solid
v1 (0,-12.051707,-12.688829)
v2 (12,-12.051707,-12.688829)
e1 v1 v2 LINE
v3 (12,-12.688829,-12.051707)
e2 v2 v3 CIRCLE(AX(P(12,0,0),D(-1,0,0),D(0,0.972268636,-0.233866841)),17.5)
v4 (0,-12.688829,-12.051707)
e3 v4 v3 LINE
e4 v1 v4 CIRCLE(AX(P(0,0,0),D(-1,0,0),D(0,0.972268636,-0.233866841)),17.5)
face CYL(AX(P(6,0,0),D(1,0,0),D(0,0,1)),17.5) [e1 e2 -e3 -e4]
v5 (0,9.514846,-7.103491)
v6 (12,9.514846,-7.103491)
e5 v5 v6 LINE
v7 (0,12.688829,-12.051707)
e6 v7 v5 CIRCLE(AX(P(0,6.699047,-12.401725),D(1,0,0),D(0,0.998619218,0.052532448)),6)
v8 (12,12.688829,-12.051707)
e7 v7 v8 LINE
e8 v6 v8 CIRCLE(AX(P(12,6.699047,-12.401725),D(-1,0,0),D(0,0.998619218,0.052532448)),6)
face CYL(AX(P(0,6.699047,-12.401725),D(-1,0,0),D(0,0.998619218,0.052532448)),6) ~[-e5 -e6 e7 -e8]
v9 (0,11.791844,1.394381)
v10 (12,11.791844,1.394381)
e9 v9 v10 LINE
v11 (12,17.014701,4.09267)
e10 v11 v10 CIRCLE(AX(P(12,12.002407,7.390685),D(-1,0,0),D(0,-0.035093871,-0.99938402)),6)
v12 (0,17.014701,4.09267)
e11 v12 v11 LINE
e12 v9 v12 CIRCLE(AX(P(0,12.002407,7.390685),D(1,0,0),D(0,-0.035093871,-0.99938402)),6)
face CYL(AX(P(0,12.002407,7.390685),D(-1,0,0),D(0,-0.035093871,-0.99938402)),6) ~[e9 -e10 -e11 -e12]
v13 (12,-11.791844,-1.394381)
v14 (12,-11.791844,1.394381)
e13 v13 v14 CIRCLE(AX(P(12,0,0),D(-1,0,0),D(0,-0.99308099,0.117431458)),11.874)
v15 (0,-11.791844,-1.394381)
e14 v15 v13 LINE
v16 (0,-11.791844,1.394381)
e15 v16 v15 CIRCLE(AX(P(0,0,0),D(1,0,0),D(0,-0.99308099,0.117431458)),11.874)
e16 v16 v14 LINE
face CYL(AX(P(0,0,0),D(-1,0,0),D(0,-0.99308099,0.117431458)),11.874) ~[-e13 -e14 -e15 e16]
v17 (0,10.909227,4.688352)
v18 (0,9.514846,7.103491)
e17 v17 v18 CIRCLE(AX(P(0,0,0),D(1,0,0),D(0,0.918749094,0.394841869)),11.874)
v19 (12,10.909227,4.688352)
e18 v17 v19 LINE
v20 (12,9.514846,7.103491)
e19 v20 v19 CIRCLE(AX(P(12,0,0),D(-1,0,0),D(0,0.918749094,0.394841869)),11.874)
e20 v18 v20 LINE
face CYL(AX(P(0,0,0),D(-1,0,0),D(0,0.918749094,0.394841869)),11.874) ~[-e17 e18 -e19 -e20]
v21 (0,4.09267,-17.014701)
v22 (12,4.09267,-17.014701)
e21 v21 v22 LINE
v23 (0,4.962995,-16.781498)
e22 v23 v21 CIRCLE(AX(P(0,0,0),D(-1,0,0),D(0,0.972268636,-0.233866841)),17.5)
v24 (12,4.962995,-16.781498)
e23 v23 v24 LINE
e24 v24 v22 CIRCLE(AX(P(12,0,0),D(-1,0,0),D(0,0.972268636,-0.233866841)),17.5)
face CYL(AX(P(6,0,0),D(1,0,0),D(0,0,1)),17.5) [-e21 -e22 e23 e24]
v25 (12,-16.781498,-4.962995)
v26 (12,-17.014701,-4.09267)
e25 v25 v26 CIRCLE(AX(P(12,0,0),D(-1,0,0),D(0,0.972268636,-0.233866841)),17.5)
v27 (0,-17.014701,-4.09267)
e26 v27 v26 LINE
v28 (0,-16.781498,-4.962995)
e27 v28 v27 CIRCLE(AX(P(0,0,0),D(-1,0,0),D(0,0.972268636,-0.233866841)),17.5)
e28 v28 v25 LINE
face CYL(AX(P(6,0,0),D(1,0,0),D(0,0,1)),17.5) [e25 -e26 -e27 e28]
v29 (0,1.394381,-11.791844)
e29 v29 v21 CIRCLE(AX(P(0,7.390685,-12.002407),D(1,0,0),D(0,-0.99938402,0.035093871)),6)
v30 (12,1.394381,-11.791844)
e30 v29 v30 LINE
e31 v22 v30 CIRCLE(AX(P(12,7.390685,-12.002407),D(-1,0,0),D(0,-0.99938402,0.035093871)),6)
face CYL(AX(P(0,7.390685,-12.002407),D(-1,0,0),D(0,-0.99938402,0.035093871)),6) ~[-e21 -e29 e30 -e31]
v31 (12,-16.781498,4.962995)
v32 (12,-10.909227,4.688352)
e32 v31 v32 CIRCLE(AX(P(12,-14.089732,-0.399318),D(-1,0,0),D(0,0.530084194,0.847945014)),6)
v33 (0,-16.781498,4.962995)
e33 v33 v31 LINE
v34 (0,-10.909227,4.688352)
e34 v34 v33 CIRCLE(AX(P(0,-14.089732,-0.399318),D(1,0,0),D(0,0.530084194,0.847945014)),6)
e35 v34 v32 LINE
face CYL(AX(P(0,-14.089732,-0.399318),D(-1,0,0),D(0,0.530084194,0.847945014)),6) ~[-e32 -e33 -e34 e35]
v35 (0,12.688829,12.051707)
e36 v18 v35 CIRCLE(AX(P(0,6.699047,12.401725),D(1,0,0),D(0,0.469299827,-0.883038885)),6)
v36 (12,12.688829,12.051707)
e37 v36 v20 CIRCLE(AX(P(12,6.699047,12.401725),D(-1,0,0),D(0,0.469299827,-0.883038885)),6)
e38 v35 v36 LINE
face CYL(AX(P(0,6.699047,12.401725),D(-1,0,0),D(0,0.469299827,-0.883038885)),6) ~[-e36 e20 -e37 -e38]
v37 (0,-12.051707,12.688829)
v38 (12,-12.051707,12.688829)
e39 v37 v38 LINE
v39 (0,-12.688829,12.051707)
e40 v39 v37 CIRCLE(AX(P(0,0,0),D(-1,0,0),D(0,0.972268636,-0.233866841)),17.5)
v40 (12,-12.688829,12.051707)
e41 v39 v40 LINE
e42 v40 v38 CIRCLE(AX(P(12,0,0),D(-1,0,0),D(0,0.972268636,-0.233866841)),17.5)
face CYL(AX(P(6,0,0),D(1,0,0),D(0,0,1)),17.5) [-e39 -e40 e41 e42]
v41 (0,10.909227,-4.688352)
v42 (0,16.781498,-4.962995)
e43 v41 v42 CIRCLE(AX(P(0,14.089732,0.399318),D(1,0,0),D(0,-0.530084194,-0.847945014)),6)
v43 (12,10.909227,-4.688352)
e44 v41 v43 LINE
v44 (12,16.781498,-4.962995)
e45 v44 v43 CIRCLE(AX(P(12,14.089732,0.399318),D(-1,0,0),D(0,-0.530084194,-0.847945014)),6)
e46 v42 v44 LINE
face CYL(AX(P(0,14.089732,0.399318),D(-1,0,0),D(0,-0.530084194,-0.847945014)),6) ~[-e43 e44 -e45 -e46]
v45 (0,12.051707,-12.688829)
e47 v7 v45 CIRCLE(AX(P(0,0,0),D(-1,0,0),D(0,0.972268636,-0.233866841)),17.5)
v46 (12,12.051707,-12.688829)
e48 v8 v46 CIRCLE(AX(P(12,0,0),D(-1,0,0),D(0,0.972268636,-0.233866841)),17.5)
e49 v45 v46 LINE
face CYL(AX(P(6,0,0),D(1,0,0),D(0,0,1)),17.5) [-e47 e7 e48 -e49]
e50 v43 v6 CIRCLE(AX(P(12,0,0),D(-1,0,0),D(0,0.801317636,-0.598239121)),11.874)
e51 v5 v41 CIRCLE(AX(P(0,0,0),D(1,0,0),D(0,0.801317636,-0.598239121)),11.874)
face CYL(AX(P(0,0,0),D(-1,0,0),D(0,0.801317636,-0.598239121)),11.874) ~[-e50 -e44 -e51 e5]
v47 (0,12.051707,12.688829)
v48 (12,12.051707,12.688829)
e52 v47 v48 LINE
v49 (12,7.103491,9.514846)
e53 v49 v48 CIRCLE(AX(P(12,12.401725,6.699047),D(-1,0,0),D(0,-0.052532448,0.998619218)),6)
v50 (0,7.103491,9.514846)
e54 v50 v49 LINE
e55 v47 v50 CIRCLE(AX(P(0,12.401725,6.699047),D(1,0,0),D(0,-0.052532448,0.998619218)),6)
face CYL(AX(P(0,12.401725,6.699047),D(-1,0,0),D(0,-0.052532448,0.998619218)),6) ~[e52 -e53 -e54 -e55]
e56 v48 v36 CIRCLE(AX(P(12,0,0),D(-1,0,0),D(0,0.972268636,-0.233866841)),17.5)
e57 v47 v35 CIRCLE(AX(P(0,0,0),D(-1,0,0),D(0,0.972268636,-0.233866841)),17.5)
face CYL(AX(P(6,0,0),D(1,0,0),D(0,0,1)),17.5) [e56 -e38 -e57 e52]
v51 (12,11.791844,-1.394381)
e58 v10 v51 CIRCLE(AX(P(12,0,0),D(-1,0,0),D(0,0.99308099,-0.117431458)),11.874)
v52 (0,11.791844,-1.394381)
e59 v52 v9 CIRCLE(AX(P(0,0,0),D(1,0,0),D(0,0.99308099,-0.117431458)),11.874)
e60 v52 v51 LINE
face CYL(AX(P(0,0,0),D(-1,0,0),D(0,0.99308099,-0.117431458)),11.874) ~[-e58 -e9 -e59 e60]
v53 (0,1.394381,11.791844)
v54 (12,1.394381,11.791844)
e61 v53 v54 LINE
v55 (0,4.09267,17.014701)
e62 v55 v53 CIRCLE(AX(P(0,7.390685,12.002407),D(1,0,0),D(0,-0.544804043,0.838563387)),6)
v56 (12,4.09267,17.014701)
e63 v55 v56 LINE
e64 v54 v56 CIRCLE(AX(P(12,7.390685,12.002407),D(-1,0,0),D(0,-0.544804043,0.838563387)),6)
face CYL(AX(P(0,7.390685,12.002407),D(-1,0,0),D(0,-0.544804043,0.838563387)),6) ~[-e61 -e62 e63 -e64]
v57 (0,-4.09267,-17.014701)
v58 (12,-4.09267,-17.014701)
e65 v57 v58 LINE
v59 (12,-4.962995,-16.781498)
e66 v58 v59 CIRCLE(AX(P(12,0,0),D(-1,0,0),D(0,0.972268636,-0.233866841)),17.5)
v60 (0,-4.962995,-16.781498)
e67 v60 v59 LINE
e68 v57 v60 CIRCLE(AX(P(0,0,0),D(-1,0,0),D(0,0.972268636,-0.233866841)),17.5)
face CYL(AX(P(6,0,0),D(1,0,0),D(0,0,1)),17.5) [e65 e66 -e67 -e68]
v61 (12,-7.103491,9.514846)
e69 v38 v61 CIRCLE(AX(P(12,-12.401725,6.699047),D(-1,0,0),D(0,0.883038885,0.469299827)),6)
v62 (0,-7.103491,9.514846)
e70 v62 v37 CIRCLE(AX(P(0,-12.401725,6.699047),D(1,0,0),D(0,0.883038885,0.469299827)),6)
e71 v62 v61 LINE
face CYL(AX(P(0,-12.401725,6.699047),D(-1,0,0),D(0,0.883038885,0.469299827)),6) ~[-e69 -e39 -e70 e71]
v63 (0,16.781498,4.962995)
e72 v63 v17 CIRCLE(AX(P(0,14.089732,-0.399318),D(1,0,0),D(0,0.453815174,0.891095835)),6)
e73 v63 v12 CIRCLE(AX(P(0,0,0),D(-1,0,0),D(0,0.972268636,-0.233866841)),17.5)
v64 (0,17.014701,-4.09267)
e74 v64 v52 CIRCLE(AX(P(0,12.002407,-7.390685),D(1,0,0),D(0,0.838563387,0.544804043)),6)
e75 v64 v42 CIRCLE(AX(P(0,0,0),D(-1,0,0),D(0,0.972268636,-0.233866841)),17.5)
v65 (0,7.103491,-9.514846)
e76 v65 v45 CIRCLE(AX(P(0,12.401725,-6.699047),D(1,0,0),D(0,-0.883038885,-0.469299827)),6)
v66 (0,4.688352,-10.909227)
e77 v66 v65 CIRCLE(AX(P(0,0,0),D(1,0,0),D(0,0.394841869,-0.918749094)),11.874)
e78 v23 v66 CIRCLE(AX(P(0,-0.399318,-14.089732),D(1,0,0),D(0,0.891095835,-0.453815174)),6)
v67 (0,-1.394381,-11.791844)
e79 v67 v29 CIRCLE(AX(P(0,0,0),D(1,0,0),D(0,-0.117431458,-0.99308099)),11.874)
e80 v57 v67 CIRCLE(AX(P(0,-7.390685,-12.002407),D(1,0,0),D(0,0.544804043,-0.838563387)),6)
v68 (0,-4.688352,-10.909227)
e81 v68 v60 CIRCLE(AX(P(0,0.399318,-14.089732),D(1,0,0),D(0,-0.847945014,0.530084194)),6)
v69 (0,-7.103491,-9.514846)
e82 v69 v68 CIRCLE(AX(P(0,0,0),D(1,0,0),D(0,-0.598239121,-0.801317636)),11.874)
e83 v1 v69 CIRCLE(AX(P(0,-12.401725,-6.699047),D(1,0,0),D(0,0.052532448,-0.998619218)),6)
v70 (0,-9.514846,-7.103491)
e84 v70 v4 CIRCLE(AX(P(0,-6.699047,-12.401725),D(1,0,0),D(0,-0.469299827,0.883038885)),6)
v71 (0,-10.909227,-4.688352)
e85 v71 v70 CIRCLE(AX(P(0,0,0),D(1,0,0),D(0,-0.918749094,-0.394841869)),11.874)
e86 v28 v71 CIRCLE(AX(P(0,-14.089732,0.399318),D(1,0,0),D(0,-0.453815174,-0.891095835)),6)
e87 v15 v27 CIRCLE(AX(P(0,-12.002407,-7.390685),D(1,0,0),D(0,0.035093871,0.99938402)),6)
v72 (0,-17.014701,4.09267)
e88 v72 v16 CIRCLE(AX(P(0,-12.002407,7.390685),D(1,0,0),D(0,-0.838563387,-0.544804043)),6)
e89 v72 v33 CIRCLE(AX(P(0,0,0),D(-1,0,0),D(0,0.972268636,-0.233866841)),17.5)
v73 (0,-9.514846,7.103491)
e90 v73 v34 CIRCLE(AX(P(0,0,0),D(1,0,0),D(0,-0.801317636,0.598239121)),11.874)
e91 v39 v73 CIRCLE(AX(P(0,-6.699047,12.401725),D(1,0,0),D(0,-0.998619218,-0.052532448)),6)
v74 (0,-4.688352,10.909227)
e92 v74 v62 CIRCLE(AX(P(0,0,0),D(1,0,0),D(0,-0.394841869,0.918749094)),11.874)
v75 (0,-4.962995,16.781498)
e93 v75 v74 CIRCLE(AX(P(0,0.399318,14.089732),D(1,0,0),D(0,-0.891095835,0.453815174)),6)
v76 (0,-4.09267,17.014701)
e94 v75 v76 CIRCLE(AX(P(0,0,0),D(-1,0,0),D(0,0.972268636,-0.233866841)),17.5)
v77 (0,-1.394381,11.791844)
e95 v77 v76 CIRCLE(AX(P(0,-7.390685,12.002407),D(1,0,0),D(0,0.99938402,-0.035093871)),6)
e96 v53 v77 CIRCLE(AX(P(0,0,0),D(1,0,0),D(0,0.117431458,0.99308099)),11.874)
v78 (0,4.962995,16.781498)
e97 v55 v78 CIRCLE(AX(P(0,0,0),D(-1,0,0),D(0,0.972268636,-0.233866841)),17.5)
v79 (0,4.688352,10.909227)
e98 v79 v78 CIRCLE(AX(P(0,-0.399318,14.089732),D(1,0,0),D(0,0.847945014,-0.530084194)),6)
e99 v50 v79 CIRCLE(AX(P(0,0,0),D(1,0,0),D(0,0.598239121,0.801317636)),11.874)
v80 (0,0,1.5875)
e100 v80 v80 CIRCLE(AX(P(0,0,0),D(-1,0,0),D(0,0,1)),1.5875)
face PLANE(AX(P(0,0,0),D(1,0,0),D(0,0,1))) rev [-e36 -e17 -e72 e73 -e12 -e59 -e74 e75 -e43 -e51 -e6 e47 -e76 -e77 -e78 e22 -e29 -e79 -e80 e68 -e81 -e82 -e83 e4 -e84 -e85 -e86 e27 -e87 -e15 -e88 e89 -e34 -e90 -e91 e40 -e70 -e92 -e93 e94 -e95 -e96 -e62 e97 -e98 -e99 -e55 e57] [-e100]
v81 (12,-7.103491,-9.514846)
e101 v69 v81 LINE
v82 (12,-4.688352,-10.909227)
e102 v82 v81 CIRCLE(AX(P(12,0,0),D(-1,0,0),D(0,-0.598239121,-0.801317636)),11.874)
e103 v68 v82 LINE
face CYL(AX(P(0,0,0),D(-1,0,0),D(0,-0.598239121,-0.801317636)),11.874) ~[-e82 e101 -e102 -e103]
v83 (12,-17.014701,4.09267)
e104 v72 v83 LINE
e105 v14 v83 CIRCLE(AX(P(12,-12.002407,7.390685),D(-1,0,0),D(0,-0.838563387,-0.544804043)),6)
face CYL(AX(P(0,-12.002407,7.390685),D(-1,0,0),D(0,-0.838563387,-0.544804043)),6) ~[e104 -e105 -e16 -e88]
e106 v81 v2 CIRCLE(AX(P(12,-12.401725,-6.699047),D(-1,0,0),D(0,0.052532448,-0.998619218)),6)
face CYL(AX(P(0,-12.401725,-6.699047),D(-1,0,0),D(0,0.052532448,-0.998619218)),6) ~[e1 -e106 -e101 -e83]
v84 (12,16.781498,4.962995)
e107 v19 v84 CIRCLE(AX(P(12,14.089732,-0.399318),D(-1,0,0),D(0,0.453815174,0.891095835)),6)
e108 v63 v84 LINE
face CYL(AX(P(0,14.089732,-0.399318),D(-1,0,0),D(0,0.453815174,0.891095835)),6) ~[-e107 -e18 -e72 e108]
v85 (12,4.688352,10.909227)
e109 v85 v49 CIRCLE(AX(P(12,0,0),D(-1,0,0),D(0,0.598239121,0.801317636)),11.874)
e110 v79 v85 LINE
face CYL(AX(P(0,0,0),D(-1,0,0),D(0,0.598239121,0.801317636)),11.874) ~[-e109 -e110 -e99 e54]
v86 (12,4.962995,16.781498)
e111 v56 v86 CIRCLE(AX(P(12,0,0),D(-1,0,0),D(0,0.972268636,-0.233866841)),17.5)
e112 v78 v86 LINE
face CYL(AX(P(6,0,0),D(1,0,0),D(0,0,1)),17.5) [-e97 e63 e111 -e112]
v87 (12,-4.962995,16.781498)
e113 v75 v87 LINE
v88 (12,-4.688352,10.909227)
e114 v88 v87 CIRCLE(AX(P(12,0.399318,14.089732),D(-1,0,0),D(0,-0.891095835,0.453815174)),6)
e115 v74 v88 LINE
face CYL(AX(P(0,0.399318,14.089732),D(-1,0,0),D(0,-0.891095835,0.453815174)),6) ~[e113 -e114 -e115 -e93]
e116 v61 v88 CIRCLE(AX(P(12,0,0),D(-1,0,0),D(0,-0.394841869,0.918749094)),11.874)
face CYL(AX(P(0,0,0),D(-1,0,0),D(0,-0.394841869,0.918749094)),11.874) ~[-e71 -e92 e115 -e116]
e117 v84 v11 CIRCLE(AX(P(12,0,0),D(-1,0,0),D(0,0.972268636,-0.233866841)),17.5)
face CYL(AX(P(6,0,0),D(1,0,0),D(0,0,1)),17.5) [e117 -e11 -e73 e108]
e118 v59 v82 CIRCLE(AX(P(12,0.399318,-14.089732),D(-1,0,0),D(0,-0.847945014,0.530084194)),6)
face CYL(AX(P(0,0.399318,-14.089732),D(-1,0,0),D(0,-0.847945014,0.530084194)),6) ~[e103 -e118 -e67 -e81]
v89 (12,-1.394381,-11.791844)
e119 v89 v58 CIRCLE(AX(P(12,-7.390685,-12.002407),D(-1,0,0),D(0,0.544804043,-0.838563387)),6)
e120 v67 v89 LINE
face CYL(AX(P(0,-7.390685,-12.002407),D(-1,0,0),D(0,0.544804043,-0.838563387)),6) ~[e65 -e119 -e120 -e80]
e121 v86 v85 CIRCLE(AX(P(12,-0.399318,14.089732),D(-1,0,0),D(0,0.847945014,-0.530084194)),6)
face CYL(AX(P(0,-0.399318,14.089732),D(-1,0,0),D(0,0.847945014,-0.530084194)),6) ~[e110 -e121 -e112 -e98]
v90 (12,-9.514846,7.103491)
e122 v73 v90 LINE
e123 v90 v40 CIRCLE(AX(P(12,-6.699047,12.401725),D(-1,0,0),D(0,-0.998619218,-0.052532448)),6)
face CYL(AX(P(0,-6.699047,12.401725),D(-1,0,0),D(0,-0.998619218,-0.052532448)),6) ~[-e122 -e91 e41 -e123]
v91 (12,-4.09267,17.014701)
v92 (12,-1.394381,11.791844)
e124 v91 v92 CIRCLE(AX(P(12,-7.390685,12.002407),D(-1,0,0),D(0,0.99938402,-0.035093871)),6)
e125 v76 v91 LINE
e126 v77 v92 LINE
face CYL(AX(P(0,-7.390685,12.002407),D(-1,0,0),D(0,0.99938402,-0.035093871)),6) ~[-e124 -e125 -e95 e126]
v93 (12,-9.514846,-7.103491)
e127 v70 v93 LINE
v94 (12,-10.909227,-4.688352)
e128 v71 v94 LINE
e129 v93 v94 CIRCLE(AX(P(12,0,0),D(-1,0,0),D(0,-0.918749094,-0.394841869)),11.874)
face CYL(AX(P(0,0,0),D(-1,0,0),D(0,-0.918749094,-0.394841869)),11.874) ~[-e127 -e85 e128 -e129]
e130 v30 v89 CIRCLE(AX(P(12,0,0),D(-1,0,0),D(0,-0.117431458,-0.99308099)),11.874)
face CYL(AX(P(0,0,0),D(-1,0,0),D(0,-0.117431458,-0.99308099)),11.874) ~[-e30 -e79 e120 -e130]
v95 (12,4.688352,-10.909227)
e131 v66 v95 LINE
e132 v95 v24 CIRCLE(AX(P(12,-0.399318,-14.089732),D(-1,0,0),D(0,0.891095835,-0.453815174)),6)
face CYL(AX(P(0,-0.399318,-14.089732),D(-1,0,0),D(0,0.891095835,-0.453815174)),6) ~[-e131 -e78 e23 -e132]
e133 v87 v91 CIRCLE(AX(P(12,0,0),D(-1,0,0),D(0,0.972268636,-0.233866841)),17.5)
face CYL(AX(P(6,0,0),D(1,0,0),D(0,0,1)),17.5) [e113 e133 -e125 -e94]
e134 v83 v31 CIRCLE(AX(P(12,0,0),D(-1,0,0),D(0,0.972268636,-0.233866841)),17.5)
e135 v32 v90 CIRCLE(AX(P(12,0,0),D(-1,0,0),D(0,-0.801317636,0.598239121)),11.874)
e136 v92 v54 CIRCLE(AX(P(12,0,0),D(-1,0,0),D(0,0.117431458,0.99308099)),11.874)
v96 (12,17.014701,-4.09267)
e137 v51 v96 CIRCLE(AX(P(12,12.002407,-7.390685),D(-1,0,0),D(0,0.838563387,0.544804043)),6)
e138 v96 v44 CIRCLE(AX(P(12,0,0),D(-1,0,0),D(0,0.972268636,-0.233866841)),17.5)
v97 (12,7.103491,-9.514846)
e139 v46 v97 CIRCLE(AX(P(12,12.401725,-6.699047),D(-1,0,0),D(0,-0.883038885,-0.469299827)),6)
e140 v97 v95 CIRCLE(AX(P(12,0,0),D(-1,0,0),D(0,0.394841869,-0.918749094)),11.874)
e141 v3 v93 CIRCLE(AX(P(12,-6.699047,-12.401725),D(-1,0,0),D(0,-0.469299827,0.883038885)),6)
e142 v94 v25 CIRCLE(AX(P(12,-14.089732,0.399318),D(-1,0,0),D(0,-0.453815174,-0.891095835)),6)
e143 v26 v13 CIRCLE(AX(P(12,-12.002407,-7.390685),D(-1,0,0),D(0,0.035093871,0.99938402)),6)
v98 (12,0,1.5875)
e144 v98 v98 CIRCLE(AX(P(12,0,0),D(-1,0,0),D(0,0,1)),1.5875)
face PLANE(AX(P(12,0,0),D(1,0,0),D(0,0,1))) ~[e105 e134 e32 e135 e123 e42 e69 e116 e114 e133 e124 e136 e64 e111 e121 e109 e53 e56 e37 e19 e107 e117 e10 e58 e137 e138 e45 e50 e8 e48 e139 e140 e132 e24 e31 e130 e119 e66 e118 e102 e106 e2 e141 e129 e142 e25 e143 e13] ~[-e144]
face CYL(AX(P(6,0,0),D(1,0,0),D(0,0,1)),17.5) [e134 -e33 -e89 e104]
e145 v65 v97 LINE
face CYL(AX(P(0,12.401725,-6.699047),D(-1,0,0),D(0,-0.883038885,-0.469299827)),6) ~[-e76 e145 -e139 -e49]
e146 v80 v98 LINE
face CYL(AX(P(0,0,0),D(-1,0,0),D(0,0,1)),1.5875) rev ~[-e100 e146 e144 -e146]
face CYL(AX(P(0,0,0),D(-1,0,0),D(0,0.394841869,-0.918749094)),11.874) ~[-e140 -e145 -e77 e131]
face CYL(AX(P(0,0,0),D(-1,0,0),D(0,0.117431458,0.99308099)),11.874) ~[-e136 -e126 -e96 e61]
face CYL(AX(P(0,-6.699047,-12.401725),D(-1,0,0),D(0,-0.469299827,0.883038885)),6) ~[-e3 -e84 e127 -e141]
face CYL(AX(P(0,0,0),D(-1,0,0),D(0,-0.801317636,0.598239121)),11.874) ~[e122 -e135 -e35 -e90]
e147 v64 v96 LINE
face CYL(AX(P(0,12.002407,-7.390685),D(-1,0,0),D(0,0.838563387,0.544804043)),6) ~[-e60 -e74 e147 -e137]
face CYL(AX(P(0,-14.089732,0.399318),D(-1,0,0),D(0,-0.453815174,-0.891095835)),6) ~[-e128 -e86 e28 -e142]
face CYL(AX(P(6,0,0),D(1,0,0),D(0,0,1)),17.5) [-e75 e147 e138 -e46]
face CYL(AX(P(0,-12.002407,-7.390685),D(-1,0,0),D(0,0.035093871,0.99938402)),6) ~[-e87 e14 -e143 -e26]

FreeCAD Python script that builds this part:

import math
import FreeCAD as App
import Part
import Sketcher
Q = App.Units.Quantity


def add_polygon(sketch, points):
    """Adds a closed chain of lines whose ends are joined by coincident constraints."""
    first, n = sketch.GeometryCount, len(points)
    for a, b in zip(points, points[1:] + points[:1]):
        sketch.addGeometry(Part.LineSegment(App.Vector(*a, 0), App.Vector(*b, 0)), False)
    for i in range(n):
        sketch.addConstraint(Sketcher.Constraint("Coincident", first + i, 2, first + (i + 1) % n, 1))

doc = App.newDocument("Part")
params = doc.addObject("Spreadsheet::Sheet", "Params")
for row, (alias, value) in enumerate([
    ("sketch1_width", "12 mm"),
    ("sketch1_height", "17.5 mm"),
    ("revolution_angle", "360 deg"),
    ("sketch2_radius", "6 mm"),
    ("sketch3_diameter", "3 mm"),
    ("pocket2_length", "100.000102 mm"),
], start=1):
    params.set(f"A{row}", alias)
    params.set(f"B{row}", "=" + value)
    params.setAlias(f"B{row}", alias)

body = doc.addObject("PartDesign::Body", "Body")

sketch1 = doc.addObject("Sketcher::SketchObject", "Sketch")
body.addObject(sketch1)
sketch1.AttachmentSupport = (doc.XZ_Plane, [""])
sketch1.MapMode = "FlatFace"
add_polygon(sketch1, [(0, -17.5), (0, 0), (12, 0), (12, -17.5)])
sketch1.addConstraint([
    Sketcher.Constraint("Vertical", 0),
    Sketcher.Constraint("Horizontal", 1),
    Sketcher.Constraint("Vertical", 2),
    Sketcher.Constraint("Horizontal", 3),
    Sketcher.Constraint("Coincident", 0, 2, -1, 1),
    Sketcher.Constraint("DistanceX", 1, 1, 1, 2, Q("12 mm")),
    Sketcher.Constraint("DistanceY", 0, 1, 0, 2, Q("17.5 mm")),
])
sketch1.setExpression("Constraints[9]", "Params.sketch1_width")
sketch1.setExpression("Constraints[10]", "Params.sketch1_height")
revolution = doc.addObject("PartDesign::Revolution", "Revolution")
body.addObject(revolution)
revolution.Profile = sketch1
revolution.ReferenceAxis = (sketch1, ["H_Axis"])
revolution.setExpression("Angle", "Params.revolution_angle")

sketch2 = doc.addObject("Sketcher::SketchObject", "Sketch001")
body.addObject(sketch2)
sketch2.AttachmentSupport = (doc.YZ_Plane, [""])
sketch2.MapMode = "FlatFace"
sketch2.addGeometry([
    Part.ArcOfCircle(Part.Circle(App.Vector(0, 0, 0), App.Vector(0, 0, 1), 11.874), math.radians(-6.743888), math.radians(6.743888)),
    Part.ArcOfCircle(Part.Circle(App.Vector(12.002407, -7.390685, 0), App.Vector(0, 0, 1), 6), math.radians(33.011274), math.radians(92.011144)),
    Part.ArcOfCircle(Part.Circle(App.Vector(0, 0, 0), App.Vector(0, 0, 1), 17.5254), math.radians(-13.603032), math.radians(13.603032)),
    Part.ArcOfCircle(Part.Circle(App.Vector(12.002407, 7.390685, 0), App.Vector(0, 0, 1), 6), math.radians(-92.011144), math.radians(-33.011274)),
], False)
sketch2.addConstraint([
    Sketcher.Constraint("Coincident", 0, 1, 1, 2),
    Sketcher.Constraint("Coincident", 1, 1, 2, 1),
    Sketcher.Constraint("Coincident", 2, 2, 3, 2),
    Sketcher.Constraint("Coincident", 3, 1, 0, 2),
    Sketcher.Constraint("Coincident", 0, 3, -1, 1),
    Sketcher.Constraint("Coincident", 2, 3, -1, 1),
    Sketcher.Constraint("Equal", 1, 3),
    Sketcher.Constraint("Symmetric", 1, 3, 3, 3, -1),
    Sketcher.Constraint("Radius", 1, Q("6 mm")),
    Sketcher.Constraint("Radius", 0, Q("11.874 mm")),
    Sketcher.Constraint("Radius", 2, Q("17.5254 mm")),
    Sketcher.Constraint("DistanceY", 0, 1, -1, 1, Q("1.394381 mm")),
    Sketcher.Constraint("DistanceY", 1, 1, -1, 1, Q("4.121861 mm")),
])
sketch2.setExpression("Constraints[8]", "Params.sketch2_radius")
pocket1 = doc.addObject("PartDesign::Pocket", "Pocket")
body.addObject(pocket1)
pocket1.Profile = sketch2
pocket1.Type = "ThroughAll"
pocket1.Reversed = True
doc.recompute()

polarpattern = doc.addObject("PartDesign::PolarPattern", "PolarPattern")
body.addObject(polarpattern)
polarpattern.Originals = [pocket1]
polarpattern.Axis = (doc.X_Axis, [""])
polarpattern.Angle = 360
polarpattern.Occurrences = 12
body.Tip = polarpattern

sketch3 = doc.addObject("Sketcher::SketchObject", "Sketch002")
body.addObject(sketch3)
sketch3.AttachmentSupport = (doc.YZ_Plane, [""])
sketch3.MapMode = "FlatFace"
sketch3.addGeometry(Part.Circle(App.Vector(0, 0, 0), App.Vector(0, 0, 1), 1.5), False)
sketch3.addConstraint([
    Sketcher.Constraint("Coincident", 0, 3, -1, 1),
    Sketcher.Constraint("Diameter", 0, Q("3 mm")),
])
sketch3.setExpression("Constraints[1]", "Params.sketch3_diameter")
pocket2 = doc.addObject("PartDesign::Pocket", "Pocket001")
body.addObject(pocket2)
pocket2.Profile = sketch3
pocket2.setExpression("Length", "Params.pocket2_length")
pocket2.Midplane = True

sketch4 = doc.addObject("Sketcher::SketchObject", "Sketch003")
body.addObject(sketch4)
sketch4.AttachmentSupport = (doc.YZ_Plane, [""])
sketch4.MapMode = "FlatFace"
sketch4.addGeometry(Part.Circle(App.Vector(0, 0, 0), App.Vector(0, 0, 1), 1.5875), False)
sketch4.addConstraint([
    Sketcher.Constraint("Coincident", 0, 3, -1, 1),
    Sketcher.Constraint("Diameter", 0, Q("3.175 mm")),
])
pocket3 = doc.addObject("PartDesign::Pocket", "Pocket002")
body.addObject(pocket3)
pocket3.Profile = sketch4
pocket3.Type = "ThroughAll"
pocket3.Reversed = True

doc.recompute()
